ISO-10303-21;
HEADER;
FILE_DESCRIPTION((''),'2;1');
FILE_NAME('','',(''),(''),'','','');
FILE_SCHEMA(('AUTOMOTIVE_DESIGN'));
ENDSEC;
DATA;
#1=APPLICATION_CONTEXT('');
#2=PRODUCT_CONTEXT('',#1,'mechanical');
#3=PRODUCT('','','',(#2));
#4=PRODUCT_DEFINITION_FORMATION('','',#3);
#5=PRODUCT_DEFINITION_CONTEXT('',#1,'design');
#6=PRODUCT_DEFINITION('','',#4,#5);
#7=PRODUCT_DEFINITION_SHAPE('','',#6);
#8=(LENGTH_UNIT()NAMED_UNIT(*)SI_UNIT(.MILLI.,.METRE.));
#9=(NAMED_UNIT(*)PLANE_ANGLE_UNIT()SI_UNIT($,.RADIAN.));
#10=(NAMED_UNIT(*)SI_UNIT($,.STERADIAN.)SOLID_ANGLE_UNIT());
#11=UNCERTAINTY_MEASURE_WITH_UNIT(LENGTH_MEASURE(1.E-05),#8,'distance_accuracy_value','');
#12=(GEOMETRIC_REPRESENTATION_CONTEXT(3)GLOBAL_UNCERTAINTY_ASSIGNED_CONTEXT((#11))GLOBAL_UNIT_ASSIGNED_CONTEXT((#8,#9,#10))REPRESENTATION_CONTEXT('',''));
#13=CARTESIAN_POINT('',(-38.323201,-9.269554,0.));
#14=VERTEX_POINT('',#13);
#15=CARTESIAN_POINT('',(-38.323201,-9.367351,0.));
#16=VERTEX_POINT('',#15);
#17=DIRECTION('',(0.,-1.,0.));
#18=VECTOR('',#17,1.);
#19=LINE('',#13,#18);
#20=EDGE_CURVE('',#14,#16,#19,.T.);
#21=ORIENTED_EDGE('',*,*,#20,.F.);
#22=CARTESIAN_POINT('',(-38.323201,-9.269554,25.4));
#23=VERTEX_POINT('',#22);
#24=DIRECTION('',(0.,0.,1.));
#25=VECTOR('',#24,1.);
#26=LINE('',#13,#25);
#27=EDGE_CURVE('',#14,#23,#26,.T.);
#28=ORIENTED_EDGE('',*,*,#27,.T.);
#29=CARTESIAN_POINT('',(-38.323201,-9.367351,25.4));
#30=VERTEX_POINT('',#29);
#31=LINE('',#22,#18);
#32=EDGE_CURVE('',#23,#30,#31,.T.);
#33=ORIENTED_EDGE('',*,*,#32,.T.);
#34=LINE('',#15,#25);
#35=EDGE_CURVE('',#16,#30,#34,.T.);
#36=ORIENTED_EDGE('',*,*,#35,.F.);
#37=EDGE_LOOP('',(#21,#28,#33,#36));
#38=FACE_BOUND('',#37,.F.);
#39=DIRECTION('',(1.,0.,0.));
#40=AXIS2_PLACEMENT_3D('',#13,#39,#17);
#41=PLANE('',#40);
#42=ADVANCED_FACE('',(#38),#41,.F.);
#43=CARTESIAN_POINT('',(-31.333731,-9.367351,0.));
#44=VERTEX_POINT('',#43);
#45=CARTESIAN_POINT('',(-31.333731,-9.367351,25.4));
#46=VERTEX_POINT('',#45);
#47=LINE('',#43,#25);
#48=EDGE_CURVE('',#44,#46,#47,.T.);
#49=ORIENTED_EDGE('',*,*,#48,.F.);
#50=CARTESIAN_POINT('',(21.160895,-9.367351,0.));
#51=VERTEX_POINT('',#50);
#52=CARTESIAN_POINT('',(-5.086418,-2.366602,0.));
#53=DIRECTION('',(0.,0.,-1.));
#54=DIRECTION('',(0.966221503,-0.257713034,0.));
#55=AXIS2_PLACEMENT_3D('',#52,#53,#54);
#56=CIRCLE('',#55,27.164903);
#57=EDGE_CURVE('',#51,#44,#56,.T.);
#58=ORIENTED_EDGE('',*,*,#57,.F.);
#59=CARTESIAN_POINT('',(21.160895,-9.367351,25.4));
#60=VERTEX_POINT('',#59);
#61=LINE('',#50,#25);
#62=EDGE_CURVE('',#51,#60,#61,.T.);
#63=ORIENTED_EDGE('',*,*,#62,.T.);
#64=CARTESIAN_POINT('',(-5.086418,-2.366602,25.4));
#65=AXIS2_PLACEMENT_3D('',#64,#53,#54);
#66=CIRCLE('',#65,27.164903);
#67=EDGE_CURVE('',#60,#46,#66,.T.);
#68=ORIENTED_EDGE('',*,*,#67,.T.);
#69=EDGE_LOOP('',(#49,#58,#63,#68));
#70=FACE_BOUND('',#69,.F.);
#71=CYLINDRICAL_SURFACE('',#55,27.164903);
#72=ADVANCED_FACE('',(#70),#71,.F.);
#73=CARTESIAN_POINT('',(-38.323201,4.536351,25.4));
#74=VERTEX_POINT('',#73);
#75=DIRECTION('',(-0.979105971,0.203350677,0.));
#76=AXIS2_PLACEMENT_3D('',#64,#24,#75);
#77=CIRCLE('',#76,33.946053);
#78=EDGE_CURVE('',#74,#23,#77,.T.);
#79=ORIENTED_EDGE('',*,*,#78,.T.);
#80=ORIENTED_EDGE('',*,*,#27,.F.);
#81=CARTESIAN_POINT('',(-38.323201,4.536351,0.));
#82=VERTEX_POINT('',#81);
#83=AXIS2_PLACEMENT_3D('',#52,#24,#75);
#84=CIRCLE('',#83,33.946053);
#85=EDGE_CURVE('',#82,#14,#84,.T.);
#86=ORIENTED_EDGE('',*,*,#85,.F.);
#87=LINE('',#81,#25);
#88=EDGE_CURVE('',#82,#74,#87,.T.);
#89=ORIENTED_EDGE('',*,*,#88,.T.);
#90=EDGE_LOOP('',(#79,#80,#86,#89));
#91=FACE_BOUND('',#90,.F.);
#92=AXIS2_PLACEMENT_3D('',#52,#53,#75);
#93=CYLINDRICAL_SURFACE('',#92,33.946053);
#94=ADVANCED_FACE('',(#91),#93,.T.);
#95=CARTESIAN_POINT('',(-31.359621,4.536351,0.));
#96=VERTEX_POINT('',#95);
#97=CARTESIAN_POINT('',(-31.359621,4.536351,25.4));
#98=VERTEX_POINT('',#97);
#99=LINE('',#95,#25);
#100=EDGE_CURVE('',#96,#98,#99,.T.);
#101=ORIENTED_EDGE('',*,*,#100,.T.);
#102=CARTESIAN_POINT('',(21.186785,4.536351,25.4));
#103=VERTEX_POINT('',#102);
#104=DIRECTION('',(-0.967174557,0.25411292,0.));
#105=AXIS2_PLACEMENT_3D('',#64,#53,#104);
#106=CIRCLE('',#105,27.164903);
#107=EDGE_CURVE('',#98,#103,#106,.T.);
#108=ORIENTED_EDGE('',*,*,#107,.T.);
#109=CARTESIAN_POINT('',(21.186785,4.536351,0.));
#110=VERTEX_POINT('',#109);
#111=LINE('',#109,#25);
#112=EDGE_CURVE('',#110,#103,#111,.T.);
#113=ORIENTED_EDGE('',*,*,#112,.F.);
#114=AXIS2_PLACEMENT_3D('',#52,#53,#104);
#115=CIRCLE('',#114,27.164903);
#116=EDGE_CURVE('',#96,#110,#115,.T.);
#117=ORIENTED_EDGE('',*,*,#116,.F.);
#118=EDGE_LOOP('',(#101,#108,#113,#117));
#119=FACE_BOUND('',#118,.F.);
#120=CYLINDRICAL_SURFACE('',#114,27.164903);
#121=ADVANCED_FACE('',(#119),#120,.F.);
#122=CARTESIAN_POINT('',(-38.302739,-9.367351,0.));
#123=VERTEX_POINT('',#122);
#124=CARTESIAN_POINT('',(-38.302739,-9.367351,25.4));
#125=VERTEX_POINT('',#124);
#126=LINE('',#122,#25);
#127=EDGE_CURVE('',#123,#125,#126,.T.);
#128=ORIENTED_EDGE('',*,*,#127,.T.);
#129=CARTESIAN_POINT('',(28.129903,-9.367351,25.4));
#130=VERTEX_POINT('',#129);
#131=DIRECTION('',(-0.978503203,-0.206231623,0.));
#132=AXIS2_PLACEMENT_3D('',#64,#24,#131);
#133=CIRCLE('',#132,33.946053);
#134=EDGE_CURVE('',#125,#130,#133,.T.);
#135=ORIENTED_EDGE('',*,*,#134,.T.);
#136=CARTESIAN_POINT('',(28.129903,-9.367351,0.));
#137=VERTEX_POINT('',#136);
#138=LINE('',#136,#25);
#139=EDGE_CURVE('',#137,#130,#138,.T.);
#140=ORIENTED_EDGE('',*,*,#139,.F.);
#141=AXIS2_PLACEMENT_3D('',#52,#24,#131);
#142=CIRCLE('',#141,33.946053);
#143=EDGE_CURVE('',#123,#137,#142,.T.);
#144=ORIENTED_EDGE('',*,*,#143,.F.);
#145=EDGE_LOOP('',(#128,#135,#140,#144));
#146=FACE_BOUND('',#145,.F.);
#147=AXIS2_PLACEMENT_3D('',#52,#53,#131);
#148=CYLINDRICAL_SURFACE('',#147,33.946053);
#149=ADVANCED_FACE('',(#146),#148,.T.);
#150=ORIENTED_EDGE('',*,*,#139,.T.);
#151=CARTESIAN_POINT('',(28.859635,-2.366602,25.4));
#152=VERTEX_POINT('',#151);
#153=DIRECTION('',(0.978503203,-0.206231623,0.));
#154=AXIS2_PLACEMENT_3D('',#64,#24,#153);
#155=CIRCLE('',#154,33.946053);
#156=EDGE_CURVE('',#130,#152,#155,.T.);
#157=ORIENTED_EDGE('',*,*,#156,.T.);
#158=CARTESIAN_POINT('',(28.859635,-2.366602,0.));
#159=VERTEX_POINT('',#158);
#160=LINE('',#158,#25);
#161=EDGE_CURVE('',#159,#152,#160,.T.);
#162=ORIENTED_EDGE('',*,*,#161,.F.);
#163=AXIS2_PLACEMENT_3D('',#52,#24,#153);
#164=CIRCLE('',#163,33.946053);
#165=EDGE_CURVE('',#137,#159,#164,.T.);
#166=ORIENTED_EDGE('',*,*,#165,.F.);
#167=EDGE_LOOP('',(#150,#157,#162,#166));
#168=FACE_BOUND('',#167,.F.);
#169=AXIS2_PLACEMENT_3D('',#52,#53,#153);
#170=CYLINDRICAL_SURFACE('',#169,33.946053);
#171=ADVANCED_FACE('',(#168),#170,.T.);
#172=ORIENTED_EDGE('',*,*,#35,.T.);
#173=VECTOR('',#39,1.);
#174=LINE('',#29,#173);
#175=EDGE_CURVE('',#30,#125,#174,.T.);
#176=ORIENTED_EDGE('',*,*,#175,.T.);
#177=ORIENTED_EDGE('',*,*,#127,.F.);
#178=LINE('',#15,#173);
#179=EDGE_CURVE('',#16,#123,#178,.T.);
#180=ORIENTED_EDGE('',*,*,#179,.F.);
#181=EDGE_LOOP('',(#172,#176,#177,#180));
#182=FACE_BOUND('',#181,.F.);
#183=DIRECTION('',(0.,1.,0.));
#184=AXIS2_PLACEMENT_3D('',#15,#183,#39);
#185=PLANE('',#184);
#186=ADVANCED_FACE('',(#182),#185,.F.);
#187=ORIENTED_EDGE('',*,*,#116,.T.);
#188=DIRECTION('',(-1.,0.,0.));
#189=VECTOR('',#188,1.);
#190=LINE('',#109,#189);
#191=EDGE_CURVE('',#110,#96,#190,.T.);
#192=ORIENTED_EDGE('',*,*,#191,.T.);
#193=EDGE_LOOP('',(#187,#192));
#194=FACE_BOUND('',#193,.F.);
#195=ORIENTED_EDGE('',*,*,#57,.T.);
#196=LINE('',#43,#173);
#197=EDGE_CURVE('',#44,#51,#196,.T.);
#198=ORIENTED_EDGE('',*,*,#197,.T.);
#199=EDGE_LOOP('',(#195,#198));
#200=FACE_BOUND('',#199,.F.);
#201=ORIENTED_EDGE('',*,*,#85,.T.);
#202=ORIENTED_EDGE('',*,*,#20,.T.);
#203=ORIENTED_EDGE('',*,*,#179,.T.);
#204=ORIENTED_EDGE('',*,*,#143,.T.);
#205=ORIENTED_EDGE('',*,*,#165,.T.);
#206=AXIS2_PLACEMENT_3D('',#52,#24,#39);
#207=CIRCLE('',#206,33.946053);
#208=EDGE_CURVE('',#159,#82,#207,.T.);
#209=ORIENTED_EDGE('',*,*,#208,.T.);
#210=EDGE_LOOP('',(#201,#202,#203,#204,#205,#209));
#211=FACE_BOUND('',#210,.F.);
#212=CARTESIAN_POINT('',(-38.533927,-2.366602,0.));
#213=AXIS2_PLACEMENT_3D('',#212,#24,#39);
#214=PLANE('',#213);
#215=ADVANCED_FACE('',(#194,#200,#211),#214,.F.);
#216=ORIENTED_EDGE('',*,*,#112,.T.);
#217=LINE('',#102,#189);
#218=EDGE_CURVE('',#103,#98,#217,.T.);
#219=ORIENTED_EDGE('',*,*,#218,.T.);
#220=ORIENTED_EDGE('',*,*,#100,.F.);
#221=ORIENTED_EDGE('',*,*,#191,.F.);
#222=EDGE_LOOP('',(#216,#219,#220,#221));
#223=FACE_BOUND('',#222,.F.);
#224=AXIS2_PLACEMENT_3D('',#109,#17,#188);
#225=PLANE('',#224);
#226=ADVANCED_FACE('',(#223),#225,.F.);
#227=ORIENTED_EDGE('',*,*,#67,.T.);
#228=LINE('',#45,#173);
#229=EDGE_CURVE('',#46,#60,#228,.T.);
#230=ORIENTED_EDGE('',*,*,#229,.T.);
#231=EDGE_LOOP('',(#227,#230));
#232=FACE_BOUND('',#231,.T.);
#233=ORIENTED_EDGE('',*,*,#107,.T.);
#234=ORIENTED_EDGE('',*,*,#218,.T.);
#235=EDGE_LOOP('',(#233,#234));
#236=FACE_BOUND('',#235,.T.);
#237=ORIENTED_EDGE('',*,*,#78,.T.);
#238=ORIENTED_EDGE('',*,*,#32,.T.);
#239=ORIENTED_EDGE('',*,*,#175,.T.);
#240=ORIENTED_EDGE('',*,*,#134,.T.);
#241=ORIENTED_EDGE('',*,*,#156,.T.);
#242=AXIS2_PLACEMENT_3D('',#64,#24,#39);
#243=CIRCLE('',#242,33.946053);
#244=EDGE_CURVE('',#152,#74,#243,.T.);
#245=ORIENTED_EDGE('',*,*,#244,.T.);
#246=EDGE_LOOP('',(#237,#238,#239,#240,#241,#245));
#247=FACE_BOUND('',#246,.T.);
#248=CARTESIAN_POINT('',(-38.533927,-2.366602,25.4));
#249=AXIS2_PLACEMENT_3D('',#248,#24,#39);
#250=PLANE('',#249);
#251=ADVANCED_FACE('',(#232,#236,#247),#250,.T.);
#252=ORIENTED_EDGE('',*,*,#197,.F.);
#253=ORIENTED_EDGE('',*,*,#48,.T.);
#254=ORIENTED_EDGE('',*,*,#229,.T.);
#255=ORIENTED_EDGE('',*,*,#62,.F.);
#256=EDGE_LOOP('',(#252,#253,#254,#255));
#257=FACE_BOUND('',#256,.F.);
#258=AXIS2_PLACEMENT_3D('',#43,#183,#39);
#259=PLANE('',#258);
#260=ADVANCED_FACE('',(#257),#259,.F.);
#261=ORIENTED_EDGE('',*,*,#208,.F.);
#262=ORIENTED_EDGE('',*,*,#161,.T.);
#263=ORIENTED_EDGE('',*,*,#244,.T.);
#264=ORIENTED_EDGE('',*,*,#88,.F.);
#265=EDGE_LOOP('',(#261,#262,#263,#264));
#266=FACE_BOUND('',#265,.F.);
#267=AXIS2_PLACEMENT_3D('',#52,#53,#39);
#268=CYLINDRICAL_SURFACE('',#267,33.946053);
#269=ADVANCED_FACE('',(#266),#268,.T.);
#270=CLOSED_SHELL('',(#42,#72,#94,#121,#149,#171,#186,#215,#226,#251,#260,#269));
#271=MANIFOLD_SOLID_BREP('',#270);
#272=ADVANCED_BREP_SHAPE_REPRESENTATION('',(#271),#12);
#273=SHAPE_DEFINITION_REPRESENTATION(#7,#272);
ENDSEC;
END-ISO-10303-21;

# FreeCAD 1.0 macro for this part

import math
import FreeCAD as App
import Part
import Sketcher

V = App.Vector
Q = App.Units.Quantity

doc = App.newDocument("Part")
body = doc.addObject("PartDesign::Body", "Body")

# Sketch on XY plane
sketch1 = body.newObject("Sketcher::SketchObject", "Sketch")
sketch1.AttachmentSupport = (doc.getObject("XY_Plane"), [""])
sketch1.MapMode = "FlatFace"
sketch1.addGeometry([
    Part.ArcOfCircle(Part.Circle(V(-5.086, -2.367, 0), V(0, 0, 1), 33.946), math.radians(-168), math.radians(-12)),  # 0
    Part.ArcOfCircle(Part.Circle(V(-5.086, -2.367, 0), V(0, 0, 1), 33.946), math.radians(-11.9), math.radians(0)),  # 1
    Part.ArcOfCircle(Part.Circle(V(-5.086, -2.367, 0), V(0, 0, 1), 33.946), math.radians(0), math.radians(168)),  # 2
    Part.ArcOfCircle(Part.Circle(V(-5.086, -2.367, 0), V(0, 0, 1), 33.946), math.radians(168), math.radians(192)),  # 3
    Part.LineSegment(V(-38.323, -9.27, 0), V(-38.323, -9.367, 0)),  # 4
    Part.LineSegment(V(-38.323, -9.367, 0), V(-38.303, -9.367, 0)),  # 5
    Part.LineSegment(V(-31.334, -9.367, 0), V(21.161, -9.367, 0)),  # 6
    Part.ArcOfCircle(Part.Circle(V(-5.086, -2.367, 0), V(0, 0, 1), 27.165), math.radians(-165), math.radians(-15)),  # 7
    Part.ArcOfCircle(Part.Circle(V(-5.086, -2.367, 0), V(0, 0, 1), 27.165), math.radians(15), math.radians(165)),  # 8
    Part.LineSegment(V(21.187, 4.536, 0), V(-31.36, 4.536, 0)),  # 9
], False)
sketch1.addConstraint([
    Sketcher.Constraint("Tangent", 0, 2, 1, 1),
    Sketcher.Constraint("Tangent", 1, 2, 2, 1),
    Sketcher.Constraint("Tangent", 2, 2, 3, 1),
    Sketcher.Constraint("Coincident", 3, 2, 4, 1),
    Sketcher.Constraint("Coincident", 4, 2, 5, 1),
    Sketcher.Constraint("Coincident", 5, 2, 0, 1),
    Sketcher.Constraint("Coincident", 6, 1, 7, 1),
    Sketcher.Constraint("Coincident", 7, 2, 6, 2),
    Sketcher.Constraint("Coincident", 8, 1, 9, 1),
    Sketcher.Constraint("Coincident", 9, 2, 8, 2),
    Sketcher.Constraint("Vertical", 4),
    Sketcher.Constraint("Horizontal", 5),
    Sketcher.Constraint("Horizontal", 6),
    Sketcher.Constraint("Horizontal", 9),
    Sketcher.Constraint("Coincident", 2, 3, 0, 3),
    Sketcher.Constraint("Coincident", 7, 3, 0, 3),
    Sketcher.Constraint("Coincident", 8, 3, 0, 3),
    Sketcher.Constraint("Equal", 2, 3),
    Sketcher.Constraint("Equal", 7, 8),
    Sketcher.Constraint("Horizontal", 8, 3, 1, 2),
    Sketcher.Constraint("Horizontal", 0, 2, 4, 2),
    Sketcher.Constraint("Horizontal", 5, 2, 6, 1),
    Sketcher.Constraint("Horizontal", 2, 2, 8, 1),
    Sketcher.Constraint("Vertical", 2, 2, 3, 2),
    Sketcher.Constraint("Radius", 0, 33.946053),
    Sketcher.Constraint("Radius", 7, 27.164903),
    Sketcher.Constraint("DistanceX", 7, 2, 1, 2, Q("0.3031 in")),
    Sketcher.Constraint("DistanceX", 5, 1, 5, 2, 0.020462),
    Sketcher.Constraint("DistanceY", 0, 3, -1, 1, 2.366602),
    Sketcher.Constraint("DistanceX", 2, 2, -1, 1, 38.323201),
])
pad1 = body.newObject("PartDesign::Pad", "Pad")
pad1.Profile = sketch1
pad1.Length = Q("1 in")

doc.recompute()
